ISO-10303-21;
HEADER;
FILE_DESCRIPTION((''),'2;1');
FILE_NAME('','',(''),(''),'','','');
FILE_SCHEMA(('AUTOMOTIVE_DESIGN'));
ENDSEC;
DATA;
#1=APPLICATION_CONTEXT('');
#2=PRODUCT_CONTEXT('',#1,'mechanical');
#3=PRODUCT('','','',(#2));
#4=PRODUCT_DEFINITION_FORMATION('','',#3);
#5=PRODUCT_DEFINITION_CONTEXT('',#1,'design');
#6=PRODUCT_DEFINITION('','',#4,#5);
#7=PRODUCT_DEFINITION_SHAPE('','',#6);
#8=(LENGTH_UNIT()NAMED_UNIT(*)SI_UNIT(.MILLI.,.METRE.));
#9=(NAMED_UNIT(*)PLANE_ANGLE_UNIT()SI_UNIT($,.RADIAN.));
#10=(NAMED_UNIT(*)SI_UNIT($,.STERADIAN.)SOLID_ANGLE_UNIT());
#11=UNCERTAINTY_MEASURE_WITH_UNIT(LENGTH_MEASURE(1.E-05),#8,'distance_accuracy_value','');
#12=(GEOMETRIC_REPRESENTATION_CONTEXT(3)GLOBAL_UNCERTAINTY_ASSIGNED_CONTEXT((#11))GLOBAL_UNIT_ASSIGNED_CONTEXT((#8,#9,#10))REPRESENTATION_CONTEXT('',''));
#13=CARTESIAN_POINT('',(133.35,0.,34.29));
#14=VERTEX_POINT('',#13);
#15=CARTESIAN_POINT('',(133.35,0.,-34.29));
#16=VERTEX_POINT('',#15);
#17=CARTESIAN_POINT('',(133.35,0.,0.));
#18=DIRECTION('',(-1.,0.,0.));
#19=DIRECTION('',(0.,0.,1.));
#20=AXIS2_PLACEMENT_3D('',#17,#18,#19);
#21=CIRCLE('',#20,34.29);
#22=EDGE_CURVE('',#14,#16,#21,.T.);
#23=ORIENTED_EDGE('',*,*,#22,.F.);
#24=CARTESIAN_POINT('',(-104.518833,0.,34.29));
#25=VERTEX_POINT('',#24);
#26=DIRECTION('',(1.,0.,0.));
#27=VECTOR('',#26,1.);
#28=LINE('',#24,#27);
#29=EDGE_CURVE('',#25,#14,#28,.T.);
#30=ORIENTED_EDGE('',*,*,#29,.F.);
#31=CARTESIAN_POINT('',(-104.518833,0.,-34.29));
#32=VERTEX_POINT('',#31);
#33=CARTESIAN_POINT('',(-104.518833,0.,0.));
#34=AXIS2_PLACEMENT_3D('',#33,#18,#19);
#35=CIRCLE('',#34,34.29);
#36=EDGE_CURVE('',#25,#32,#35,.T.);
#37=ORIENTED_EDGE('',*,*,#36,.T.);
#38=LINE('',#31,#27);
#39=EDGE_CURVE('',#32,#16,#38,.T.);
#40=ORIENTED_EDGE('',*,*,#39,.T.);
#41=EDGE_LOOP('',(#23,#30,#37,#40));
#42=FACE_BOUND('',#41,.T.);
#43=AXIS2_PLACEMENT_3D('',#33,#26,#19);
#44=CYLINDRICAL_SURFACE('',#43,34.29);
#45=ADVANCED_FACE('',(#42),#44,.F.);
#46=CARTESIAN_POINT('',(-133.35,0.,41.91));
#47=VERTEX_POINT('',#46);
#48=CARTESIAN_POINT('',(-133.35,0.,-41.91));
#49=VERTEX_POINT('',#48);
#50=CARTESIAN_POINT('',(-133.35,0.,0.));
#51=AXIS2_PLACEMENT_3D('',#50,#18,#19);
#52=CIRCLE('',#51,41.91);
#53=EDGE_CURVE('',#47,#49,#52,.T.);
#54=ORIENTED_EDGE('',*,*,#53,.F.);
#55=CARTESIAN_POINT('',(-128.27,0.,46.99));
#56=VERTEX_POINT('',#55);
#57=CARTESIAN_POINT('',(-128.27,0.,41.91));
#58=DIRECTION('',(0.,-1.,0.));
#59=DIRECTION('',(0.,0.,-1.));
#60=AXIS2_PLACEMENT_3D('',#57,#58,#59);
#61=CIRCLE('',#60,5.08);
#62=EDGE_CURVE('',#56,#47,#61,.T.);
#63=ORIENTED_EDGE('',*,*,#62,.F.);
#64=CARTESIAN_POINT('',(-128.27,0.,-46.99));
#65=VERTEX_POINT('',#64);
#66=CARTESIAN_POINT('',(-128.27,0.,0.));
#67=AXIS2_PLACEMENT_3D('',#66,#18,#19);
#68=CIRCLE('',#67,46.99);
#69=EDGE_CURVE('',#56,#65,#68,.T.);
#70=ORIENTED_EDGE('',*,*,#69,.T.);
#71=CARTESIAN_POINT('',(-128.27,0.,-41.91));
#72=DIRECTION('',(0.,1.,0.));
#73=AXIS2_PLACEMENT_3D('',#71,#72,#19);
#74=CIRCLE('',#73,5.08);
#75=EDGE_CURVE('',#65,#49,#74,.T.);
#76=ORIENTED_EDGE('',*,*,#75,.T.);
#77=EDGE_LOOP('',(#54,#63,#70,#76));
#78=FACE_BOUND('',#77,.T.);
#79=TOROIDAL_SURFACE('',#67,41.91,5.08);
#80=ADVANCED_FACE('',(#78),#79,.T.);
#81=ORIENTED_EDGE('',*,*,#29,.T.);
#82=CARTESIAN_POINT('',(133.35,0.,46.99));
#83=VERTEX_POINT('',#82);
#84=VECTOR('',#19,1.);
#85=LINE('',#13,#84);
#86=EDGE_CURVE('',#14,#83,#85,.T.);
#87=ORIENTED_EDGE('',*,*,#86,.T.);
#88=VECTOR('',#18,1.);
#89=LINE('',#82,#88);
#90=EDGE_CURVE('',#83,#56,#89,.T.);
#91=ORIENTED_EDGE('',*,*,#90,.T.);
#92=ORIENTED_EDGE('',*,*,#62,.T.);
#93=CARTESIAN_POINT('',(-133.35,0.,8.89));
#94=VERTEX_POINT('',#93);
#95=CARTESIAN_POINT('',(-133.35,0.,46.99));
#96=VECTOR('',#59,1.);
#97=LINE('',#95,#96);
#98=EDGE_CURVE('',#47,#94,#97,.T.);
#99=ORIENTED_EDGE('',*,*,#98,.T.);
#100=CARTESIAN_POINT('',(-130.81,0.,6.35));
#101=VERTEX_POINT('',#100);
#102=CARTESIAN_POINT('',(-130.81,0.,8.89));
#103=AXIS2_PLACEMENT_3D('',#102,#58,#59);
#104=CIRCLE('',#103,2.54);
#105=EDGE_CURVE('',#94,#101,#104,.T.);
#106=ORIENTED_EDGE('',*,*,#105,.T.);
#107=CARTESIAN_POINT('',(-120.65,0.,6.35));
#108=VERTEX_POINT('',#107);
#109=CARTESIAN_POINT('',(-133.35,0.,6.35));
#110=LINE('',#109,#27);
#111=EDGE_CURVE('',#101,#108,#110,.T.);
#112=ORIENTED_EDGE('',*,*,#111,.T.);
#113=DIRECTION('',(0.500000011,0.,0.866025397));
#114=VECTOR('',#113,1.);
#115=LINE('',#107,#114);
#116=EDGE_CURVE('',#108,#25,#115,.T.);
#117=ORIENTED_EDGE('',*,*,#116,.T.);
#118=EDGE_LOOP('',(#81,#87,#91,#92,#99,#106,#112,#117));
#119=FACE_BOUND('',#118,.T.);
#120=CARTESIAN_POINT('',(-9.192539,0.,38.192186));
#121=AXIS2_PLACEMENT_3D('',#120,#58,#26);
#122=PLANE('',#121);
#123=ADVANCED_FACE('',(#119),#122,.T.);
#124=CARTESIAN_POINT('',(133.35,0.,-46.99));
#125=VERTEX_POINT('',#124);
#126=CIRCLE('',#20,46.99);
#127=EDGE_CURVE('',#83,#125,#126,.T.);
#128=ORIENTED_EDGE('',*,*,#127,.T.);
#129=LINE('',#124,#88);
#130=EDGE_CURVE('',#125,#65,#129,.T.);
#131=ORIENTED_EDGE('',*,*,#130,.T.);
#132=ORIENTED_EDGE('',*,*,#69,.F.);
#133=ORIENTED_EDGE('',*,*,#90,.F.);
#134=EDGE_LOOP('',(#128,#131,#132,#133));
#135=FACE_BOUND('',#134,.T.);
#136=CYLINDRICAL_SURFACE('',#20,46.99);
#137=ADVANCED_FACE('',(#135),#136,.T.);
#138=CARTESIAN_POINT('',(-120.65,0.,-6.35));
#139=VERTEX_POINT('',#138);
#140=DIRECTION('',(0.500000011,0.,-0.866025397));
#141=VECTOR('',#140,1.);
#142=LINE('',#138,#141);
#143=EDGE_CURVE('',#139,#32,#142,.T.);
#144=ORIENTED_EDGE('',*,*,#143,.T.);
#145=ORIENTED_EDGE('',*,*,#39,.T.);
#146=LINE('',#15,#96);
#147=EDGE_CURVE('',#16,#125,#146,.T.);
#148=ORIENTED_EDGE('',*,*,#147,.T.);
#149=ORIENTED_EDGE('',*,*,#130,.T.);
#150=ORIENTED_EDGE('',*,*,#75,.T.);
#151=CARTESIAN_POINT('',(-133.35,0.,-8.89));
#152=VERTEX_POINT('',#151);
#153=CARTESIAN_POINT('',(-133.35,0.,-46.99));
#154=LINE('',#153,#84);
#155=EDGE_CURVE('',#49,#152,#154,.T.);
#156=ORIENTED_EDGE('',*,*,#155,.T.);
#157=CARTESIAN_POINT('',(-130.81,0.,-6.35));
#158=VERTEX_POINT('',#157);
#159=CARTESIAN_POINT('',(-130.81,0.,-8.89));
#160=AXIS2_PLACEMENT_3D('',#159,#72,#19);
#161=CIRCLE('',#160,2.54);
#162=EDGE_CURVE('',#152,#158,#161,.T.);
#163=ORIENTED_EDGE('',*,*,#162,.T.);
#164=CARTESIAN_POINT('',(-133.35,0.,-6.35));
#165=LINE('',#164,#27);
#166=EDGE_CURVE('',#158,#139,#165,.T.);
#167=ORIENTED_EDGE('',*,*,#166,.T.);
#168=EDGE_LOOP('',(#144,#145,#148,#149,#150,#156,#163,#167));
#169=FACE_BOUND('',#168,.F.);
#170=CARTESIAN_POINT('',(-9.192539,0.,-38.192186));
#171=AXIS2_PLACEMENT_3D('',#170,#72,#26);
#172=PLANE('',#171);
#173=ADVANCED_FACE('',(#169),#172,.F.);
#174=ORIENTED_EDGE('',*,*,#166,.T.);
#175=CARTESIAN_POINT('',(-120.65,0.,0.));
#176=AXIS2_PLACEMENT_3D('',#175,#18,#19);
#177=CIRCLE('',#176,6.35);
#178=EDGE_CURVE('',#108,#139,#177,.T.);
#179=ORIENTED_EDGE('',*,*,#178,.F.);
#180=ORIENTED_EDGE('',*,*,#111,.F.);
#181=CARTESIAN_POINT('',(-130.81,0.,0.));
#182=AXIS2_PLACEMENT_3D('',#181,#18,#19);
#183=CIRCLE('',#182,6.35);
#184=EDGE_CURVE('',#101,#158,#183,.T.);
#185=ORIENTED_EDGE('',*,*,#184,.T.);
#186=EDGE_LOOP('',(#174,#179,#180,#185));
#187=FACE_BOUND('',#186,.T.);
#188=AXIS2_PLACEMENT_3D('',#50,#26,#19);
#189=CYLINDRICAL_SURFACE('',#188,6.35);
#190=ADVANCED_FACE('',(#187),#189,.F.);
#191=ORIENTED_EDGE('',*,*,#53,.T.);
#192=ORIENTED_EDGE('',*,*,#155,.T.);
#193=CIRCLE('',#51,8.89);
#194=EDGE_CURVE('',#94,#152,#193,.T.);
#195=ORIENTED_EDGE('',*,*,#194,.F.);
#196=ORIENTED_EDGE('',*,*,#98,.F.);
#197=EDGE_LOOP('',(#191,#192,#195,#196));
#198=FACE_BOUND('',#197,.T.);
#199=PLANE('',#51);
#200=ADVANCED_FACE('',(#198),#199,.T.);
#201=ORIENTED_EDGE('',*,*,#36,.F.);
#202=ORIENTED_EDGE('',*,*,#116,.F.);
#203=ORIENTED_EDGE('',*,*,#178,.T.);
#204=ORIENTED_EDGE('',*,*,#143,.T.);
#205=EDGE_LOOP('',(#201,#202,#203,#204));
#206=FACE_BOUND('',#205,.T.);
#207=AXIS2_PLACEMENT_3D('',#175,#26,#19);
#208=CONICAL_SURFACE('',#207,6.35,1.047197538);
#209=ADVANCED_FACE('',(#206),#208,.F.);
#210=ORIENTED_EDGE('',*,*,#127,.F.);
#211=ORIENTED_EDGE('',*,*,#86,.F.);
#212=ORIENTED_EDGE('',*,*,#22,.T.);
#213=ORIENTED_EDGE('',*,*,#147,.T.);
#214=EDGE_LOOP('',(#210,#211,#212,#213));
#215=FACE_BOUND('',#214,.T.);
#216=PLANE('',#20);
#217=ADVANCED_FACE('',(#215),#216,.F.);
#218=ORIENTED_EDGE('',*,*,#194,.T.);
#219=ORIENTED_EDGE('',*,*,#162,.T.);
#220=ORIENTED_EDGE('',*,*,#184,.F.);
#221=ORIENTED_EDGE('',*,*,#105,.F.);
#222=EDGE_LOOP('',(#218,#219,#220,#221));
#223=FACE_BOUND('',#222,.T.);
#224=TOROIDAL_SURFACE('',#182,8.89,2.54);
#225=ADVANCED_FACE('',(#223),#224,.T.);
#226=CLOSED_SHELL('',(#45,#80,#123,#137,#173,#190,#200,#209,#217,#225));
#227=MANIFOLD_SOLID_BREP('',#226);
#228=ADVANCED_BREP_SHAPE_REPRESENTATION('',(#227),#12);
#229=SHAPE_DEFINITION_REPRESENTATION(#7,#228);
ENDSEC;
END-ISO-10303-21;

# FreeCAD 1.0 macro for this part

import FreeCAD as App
import Part
import Sketcher

V = App.Vector
Q = App.Units.Quantity


def edges_at(feature, points):
    """Names of the edges that pass closest to the given points."""
    edges = feature.Shape.Edges
    near = lambda p: min(range(len(edges)), key=lambda i: edges[i].distToShape(Part.Vertex(*p))[0])
    return sorted({f"Edge{near(p) + 1}" for p in points})

doc = App.newDocument("Part")
body = doc.addObject("PartDesign::Body", "Body")

sketch1 = doc.addObject("Sketcher::SketchObject", "Sketch")
body.addObject(sketch1)
sketch1.AttachmentSupport = (doc.XZ_Plane, [""])
sketch1.MapMode = "FlatFace"
sketch1.addGeometry(Part.LineSegment(V(133, 47, 0), V(-133, 47, 0)), False)
sketch1.addGeometry(Part.LineSegment(V(-133, 47, 0), V(-133, 6, 0)), False)
sketch1.addGeometry(Part.LineSegment(V(-133, 6, 0), V(-121, 6, 0)), False)
sketch1.addGeometry(Part.LineSegment(V(-121, 6, 0), V(-105, 34, 0)), False)
sketch1.addGeometry(Part.LineSegment(V(-105, 34, 0), V(133, 34, 0)), False)
sketch1.addGeometry(Part.LineSegment(V(133, 34, 0), V(133, 47, 0)), False)
sketch1.addConstraint(Sketcher.Constraint("Coincident", 0, 2, 1, 1))
sketch1.addConstraint(Sketcher.Constraint("Coincident", 1, 2, 2, 1))
sketch1.addConstraint(Sketcher.Constraint("Coincident", 2, 2, 3, 1))
sketch1.addConstraint(Sketcher.Constraint("Coincident", 3, 2, 4, 1))
sketch1.addConstraint(Sketcher.Constraint("Coincident", 4, 2, 5, 1))
sketch1.addConstraint(Sketcher.Constraint("Coincident", 5, 2, 0, 1))
sketch1.addConstraint(Sketcher.Constraint("Horizontal", 0))
sketch1.addConstraint(Sketcher.Constraint("Vertical", 1))
sketch1.addConstraint(Sketcher.Constraint("Horizontal", 2))
sketch1.addConstraint(Sketcher.Constraint("Horizontal", 4))
sketch1.addConstraint(Sketcher.Constraint("Vertical", 5))
sketch1.addConstraint(Sketcher.Constraint("Equal", 2, 5))
sketch1.addConstraint(Sketcher.Constraint("DistanceX", 0, 2, 0, 1, Q("10.5 in")))
sketch1.addConstraint(Sketcher.Constraint("DistanceX", 2, 1, 2, 2, Q("0.5 in")))
sketch1.addConstraint(Sketcher.Constraint("DistanceY", 1, 2, 1, 1, Q("1.6 in")))
sketch1.addConstraint(Sketcher.Constraint("Angle", 3, Q("59.999999 deg")))
sketch1.addConstraint(Sketcher.Constraint("DistanceX", 0, 2, -1, 1, Q("5.25 in")))
sketch1.addConstraint(Sketcher.Constraint("DistanceY", -1, 1, 0, 2, Q("1.85 in")))
revolution = doc.addObject("PartDesign::Revolution", "Revolution")
body.addObject(revolution)
revolution.Profile = sketch1
revolution.ReferenceAxis = (sketch1, ["H_Axis"])
revolution.Angle = 180
revolution.Reversed = True
doc.recompute()

fillet = doc.addObject("PartDesign::Fillet", "Fillet")
body.addObject(fillet)
fillet.Base = (revolution, edges_at(revolution, [(-133.35, 46.99, 0)]))
fillet.Radius = Q("0.2 in")
doc.recompute()

fillet2 = doc.addObject("PartDesign::Fillet", "Fillet001")
body.addObject(fillet2)
fillet2.Base = (fillet, edges_at(fillet, [(-133.35, 6.35, 0)]))
fillet2.Radius = Q("0.1 in")

doc.recompute()
